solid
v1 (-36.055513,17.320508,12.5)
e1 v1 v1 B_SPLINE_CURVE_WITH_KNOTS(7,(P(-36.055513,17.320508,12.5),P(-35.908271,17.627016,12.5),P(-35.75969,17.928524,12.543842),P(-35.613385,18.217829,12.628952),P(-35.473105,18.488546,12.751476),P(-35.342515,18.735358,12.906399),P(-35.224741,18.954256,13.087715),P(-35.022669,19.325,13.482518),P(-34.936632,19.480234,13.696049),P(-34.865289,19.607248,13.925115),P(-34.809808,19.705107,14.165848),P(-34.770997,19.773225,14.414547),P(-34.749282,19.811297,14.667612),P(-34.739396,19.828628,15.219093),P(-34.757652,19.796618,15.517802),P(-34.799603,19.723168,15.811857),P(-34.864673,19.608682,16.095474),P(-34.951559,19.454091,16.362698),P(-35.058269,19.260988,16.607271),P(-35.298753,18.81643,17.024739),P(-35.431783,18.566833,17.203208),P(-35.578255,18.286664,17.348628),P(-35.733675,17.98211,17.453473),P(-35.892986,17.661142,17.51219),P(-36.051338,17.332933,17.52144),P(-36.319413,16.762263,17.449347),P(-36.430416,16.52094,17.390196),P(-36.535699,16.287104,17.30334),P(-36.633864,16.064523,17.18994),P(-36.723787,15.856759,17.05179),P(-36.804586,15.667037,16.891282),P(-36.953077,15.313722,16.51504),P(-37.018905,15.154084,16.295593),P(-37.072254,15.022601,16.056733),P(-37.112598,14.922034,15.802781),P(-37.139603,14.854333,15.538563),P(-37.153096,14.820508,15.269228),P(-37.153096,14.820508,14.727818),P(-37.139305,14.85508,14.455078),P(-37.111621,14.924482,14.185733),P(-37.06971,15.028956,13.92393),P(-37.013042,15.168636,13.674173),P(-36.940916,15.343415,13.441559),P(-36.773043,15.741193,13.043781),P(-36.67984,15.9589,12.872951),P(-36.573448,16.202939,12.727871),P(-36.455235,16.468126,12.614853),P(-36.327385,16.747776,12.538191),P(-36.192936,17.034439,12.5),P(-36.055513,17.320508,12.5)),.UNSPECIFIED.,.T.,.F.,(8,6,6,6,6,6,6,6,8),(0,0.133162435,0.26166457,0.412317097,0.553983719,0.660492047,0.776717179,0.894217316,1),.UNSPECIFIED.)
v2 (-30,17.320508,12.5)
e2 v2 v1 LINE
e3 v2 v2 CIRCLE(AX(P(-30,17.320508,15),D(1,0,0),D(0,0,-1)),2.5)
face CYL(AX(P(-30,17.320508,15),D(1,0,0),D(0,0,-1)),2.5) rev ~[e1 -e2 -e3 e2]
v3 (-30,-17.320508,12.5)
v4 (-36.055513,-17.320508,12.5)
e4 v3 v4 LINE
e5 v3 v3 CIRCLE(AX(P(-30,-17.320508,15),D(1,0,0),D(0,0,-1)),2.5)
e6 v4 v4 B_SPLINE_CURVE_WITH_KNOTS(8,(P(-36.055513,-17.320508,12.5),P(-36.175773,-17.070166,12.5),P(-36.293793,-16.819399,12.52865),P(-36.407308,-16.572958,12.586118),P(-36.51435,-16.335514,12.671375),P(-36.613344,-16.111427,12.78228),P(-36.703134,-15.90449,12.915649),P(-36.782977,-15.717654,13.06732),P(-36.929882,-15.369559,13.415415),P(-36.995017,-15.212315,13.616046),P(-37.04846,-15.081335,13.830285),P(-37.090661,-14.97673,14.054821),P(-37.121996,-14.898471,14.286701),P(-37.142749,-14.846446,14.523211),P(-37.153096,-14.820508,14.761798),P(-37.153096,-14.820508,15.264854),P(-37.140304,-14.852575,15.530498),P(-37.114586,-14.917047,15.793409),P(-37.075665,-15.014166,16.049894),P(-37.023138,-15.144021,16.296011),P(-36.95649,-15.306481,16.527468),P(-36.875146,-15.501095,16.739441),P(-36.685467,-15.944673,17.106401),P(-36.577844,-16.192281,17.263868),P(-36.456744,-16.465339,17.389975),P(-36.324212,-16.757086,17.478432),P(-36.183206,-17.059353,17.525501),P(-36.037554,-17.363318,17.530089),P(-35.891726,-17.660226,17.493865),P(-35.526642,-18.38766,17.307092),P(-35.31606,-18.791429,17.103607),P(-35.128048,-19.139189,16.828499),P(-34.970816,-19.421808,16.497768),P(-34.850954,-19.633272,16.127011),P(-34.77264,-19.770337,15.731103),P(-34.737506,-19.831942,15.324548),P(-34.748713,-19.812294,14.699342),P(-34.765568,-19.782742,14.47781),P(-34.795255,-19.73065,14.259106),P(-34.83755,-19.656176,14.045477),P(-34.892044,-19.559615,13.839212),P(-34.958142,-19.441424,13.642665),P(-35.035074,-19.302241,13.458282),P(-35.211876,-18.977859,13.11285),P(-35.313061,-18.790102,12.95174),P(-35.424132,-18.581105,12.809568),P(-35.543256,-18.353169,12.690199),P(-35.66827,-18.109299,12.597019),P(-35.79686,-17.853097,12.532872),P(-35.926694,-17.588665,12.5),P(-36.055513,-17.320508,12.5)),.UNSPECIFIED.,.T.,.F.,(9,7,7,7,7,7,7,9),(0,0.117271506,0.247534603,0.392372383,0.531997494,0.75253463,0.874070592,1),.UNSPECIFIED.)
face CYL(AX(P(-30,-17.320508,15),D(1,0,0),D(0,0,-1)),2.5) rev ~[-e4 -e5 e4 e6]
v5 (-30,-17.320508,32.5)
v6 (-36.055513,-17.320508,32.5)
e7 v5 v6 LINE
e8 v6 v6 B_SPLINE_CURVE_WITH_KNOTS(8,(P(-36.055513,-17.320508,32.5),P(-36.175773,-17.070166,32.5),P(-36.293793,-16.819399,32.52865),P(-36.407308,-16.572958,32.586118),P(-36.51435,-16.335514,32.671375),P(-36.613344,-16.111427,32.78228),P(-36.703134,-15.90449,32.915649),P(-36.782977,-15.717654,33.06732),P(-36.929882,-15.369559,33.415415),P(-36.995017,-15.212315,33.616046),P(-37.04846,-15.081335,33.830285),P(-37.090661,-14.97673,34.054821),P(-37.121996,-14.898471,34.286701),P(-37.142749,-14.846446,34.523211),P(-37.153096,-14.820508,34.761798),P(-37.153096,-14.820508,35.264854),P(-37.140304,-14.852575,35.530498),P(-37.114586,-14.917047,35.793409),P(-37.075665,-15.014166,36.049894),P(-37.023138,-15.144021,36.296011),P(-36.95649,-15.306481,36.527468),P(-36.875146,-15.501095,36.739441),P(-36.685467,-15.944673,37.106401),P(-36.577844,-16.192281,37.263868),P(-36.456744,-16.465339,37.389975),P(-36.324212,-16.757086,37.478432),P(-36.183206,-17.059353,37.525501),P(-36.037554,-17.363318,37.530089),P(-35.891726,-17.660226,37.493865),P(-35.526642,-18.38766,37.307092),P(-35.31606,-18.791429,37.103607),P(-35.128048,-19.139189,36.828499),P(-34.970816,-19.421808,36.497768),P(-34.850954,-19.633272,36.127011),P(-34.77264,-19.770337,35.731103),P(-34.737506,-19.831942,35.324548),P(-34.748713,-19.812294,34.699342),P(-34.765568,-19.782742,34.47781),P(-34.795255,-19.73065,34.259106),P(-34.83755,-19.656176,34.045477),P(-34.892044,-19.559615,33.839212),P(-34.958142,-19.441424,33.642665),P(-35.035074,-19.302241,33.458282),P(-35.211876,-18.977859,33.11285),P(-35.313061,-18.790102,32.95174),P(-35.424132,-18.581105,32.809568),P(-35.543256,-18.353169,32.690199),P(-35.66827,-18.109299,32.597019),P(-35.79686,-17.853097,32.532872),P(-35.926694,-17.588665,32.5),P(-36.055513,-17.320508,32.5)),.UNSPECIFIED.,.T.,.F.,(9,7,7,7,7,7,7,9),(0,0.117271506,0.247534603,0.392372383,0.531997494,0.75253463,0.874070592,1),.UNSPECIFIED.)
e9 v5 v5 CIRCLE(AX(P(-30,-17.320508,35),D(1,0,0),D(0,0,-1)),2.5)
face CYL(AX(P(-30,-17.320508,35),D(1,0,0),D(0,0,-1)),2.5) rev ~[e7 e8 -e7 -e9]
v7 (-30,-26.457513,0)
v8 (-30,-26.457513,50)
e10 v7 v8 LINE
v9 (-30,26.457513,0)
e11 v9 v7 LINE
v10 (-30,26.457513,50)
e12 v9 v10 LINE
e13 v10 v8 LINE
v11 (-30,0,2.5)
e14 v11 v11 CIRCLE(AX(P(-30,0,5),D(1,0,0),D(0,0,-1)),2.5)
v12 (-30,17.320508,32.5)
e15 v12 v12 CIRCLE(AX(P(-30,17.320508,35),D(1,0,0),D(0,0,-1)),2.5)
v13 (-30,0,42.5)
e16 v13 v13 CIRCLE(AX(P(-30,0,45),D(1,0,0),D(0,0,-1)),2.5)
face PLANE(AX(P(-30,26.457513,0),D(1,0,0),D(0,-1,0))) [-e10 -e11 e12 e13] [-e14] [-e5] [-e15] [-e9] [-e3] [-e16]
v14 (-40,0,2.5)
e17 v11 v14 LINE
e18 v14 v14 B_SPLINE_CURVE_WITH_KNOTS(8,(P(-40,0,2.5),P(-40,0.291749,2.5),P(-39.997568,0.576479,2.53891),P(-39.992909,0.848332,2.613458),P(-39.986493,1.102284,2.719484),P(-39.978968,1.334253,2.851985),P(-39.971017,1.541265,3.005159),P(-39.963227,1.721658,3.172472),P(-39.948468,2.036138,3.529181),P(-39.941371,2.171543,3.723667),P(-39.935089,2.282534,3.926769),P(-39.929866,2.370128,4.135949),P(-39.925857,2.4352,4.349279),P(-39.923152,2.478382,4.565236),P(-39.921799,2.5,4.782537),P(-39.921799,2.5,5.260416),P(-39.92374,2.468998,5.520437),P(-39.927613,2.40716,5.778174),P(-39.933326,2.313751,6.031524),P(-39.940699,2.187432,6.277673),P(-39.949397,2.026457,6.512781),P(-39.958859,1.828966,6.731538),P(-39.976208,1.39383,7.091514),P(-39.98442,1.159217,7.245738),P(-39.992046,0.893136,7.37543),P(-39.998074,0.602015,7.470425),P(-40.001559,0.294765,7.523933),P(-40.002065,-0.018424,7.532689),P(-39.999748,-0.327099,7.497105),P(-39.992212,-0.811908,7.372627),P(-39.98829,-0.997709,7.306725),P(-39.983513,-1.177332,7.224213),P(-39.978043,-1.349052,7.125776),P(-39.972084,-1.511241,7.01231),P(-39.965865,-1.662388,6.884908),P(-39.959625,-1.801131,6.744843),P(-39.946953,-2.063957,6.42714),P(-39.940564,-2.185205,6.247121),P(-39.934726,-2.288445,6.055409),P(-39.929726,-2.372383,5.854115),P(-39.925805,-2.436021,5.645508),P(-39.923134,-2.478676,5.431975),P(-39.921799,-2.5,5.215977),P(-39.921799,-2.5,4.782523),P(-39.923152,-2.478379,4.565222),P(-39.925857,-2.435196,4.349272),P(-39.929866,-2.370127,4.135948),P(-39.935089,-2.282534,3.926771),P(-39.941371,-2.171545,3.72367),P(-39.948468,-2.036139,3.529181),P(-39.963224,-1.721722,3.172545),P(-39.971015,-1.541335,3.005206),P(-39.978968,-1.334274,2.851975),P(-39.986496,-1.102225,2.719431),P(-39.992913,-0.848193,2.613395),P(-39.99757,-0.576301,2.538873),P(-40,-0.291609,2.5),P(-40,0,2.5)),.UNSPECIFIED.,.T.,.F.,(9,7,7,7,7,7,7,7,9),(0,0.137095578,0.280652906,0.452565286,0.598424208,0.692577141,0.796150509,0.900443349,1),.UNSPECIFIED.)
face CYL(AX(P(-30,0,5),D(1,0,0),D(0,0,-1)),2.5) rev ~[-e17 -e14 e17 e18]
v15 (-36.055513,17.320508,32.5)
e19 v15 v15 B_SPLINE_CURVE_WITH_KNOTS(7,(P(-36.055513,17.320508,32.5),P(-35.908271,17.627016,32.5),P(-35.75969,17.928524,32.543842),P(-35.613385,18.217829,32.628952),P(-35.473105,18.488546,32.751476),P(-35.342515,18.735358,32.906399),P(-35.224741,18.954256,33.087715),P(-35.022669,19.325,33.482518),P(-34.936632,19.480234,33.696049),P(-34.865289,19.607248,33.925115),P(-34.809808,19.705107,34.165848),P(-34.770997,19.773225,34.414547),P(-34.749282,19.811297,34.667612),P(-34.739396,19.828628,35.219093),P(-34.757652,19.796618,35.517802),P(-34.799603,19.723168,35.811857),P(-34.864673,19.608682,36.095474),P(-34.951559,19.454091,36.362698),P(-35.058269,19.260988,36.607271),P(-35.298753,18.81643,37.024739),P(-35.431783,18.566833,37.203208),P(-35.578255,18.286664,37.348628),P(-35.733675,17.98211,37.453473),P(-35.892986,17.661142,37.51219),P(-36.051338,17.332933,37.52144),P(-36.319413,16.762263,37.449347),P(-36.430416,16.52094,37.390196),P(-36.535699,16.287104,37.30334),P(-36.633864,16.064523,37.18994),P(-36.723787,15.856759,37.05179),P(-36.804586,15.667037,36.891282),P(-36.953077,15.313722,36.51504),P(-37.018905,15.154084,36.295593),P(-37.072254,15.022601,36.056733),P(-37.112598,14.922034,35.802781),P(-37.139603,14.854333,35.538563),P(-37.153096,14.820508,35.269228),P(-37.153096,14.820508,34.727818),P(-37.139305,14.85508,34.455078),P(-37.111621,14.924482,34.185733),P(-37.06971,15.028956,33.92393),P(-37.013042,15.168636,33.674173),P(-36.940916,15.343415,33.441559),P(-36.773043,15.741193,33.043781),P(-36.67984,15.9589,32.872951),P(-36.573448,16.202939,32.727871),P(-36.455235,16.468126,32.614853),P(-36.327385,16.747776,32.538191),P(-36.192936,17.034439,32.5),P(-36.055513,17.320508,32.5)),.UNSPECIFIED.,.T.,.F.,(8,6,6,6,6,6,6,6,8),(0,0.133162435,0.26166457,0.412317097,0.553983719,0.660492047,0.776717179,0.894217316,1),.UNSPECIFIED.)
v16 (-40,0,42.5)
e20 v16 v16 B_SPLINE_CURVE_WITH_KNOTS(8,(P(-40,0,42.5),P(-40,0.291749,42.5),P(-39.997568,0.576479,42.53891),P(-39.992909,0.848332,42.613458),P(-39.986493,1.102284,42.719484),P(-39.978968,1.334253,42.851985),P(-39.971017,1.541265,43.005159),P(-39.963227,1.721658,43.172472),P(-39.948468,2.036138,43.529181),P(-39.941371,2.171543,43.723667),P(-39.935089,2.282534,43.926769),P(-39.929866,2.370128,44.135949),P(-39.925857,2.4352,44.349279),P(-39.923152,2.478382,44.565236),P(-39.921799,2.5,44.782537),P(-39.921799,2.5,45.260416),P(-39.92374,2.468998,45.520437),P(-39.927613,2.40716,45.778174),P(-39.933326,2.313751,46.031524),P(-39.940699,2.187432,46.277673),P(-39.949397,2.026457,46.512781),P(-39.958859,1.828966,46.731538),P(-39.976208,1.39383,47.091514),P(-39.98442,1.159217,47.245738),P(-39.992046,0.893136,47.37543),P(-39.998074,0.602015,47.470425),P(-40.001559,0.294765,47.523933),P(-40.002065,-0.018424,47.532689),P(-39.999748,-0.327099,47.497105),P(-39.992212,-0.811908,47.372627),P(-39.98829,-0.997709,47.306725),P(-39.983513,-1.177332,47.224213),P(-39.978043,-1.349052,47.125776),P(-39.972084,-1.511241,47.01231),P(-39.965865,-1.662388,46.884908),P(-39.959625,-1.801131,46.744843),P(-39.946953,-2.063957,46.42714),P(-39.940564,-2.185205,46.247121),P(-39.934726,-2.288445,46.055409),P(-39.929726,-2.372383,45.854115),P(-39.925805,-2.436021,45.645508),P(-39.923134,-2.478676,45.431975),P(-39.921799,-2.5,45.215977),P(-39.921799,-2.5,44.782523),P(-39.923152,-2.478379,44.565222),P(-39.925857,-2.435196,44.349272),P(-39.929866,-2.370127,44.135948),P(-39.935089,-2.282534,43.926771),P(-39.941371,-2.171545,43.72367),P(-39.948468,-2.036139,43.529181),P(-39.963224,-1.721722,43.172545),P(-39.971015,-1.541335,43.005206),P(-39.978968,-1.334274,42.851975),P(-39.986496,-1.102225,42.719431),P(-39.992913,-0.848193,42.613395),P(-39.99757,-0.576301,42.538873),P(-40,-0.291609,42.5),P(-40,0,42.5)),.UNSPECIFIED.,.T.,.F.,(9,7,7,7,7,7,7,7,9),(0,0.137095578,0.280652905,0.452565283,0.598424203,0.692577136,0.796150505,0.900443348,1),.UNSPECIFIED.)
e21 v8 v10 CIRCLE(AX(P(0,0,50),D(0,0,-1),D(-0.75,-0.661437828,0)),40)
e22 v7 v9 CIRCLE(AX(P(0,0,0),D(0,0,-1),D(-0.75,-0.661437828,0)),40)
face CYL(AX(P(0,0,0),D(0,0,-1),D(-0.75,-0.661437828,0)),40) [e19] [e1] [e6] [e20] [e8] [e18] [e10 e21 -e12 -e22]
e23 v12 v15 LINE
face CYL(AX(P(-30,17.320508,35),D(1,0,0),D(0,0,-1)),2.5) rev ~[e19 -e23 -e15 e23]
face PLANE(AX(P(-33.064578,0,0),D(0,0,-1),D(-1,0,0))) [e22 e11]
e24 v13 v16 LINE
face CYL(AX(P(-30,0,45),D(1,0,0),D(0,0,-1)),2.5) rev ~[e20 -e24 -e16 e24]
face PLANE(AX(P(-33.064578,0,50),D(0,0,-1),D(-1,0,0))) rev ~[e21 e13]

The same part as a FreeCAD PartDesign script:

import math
import FreeCAD as App
import Part
import Sketcher

V = App.Vector
Q = App.Units.Quantity

doc = App.newDocument("Part")
body = doc.addObject("PartDesign::Body", "Body")

# Sketch on XY plane
sketch1 = doc.addObject("Sketcher::SketchObject", "Sketch")
body.addObject(sketch1)
sketch1.AttachmentSupport = (doc.XY_Plane, [""])
sketch1.MapMode = "FlatFace"
sketch1.addGeometry(Part.LineSegment(V(-30, -26, 0), V(-30, 26, 0)), False)
sketch1.addGeometry(Part.ArcOfCircle(Part.Circle(V(0, 0, 0), V(0, 0, 1), 40), math.radians(139), math.radians(221)), False)
sketch1.addConstraint(Sketcher.Constraint("Coincident", 0, 1, 1, 2))
sketch1.addConstraint(Sketcher.Constraint("Coincident", 1, 1, 0, 2))
sketch1.addConstraint(Sketcher.Constraint("Vertical", 0))
sketch1.addConstraint(Sketcher.Constraint("Coincident", 1, 3, -1, 1))
sketch1.addConstraint(Sketcher.Constraint("Radius", 1, Q("40 mm")))
sketch1.addConstraint(Sketcher.Constraint("DistanceX", 0, 1, -1, 1, Q("30 mm")))
pad1 = doc.addObject("PartDesign::Pad", "Pad")
body.addObject(pad1)
pad1.Profile = sketch1
pad1.Length = 50

# Sketch on YZ plane
sketch2 = doc.addObject("Sketcher::SketchObject", "Sketch001")
body.addObject(sketch2)
sketch2.AttachmentSupport = (doc.YZ_Plane, [""])
sketch2.MapMode = "FlatFace"
sketch2.AttachmentOffset = App.Placement(V(0, 0, -30), App.Rotation())
sketch2.addGeometry(Part.Circle(V(0, 5, 0), V(0, 0, 1), 2.5), False)
sketch2.addGeometry(Part.Circle(V(-17.3, 15, 0), V(0, 0, 1), 2.5), False)
sketch2.addGeometry(Part.Circle(V(-17.3, 35, 0), V(0, 0, 1), 2.5), False)
sketch2.addGeometry(Part.Circle(V(0, 45, 0), V(0, 0, 1), 2.5), False)
sketch2.addGeometry(Part.Circle(V(17.3, 35, 0), V(0, 0, 1), 2.5), False)
sketch2.addGeometry(Part.Circle(V(17.3, 15, 0), V(0, 0, 1), 2.5), False)
sketch2.addConstraint(Sketcher.Constraint("Equal", 0, 1))
sketch2.addConstraint(Sketcher.Constraint("Equal", 1, 2))
sketch2.addConstraint(Sketcher.Constraint("Equal", 2, 3))
sketch2.addConstraint(Sketcher.Constraint("Equal", 3, 4))
sketch2.addConstraint(Sketcher.Constraint("Equal", 4, 5))
sketch2.addConstraint(Sketcher.Constraint("Symmetric", 2, 3, 4, 3, -2))
sketch2.addConstraint(Sketcher.Constraint("Symmetric", 1, 3, 5, 3, -2))
sketch2.addConstraint(Sketcher.Constraint("PointOnObject", 0, 3, -2))
sketch2.addConstraint(Sketcher.Constraint("PointOnObject", 3, 3, -2))
sketch2.addConstraint(Sketcher.Constraint("Vertical", 1, 3, 2, 3))
sketch2.addConstraint(Sketcher.Constraint("Diameter", 0, Q("5 mm")))
sketch2.addConstraint(Sketcher.Constraint("DistanceY", -1, 1, 0, 3, Q("5 mm")))
sketch2.addConstraint(Sketcher.Constraint("DistanceY", -1, 1, 1, 3, Q("15 mm")))
sketch2.addConstraint(Sketcher.Constraint("DistanceY", -1, 1, 2, 3, Q("35 mm")))
sketch2.addConstraint(Sketcher.Constraint("DistanceY", -1, 1, 3, 3, Q("45 mm")))
sketch2.addConstraint(Sketcher.Constraint("DistanceX", 1, 3, -1, 1, Q("17.320508 mm")))
pocket1 = doc.addObject("PartDesign::Pocket", "Pocket")
body.addObject(pocket1)
pocket1.Profile = sketch2
pocket1.Type = "ThroughAll"

doc.recompute()
